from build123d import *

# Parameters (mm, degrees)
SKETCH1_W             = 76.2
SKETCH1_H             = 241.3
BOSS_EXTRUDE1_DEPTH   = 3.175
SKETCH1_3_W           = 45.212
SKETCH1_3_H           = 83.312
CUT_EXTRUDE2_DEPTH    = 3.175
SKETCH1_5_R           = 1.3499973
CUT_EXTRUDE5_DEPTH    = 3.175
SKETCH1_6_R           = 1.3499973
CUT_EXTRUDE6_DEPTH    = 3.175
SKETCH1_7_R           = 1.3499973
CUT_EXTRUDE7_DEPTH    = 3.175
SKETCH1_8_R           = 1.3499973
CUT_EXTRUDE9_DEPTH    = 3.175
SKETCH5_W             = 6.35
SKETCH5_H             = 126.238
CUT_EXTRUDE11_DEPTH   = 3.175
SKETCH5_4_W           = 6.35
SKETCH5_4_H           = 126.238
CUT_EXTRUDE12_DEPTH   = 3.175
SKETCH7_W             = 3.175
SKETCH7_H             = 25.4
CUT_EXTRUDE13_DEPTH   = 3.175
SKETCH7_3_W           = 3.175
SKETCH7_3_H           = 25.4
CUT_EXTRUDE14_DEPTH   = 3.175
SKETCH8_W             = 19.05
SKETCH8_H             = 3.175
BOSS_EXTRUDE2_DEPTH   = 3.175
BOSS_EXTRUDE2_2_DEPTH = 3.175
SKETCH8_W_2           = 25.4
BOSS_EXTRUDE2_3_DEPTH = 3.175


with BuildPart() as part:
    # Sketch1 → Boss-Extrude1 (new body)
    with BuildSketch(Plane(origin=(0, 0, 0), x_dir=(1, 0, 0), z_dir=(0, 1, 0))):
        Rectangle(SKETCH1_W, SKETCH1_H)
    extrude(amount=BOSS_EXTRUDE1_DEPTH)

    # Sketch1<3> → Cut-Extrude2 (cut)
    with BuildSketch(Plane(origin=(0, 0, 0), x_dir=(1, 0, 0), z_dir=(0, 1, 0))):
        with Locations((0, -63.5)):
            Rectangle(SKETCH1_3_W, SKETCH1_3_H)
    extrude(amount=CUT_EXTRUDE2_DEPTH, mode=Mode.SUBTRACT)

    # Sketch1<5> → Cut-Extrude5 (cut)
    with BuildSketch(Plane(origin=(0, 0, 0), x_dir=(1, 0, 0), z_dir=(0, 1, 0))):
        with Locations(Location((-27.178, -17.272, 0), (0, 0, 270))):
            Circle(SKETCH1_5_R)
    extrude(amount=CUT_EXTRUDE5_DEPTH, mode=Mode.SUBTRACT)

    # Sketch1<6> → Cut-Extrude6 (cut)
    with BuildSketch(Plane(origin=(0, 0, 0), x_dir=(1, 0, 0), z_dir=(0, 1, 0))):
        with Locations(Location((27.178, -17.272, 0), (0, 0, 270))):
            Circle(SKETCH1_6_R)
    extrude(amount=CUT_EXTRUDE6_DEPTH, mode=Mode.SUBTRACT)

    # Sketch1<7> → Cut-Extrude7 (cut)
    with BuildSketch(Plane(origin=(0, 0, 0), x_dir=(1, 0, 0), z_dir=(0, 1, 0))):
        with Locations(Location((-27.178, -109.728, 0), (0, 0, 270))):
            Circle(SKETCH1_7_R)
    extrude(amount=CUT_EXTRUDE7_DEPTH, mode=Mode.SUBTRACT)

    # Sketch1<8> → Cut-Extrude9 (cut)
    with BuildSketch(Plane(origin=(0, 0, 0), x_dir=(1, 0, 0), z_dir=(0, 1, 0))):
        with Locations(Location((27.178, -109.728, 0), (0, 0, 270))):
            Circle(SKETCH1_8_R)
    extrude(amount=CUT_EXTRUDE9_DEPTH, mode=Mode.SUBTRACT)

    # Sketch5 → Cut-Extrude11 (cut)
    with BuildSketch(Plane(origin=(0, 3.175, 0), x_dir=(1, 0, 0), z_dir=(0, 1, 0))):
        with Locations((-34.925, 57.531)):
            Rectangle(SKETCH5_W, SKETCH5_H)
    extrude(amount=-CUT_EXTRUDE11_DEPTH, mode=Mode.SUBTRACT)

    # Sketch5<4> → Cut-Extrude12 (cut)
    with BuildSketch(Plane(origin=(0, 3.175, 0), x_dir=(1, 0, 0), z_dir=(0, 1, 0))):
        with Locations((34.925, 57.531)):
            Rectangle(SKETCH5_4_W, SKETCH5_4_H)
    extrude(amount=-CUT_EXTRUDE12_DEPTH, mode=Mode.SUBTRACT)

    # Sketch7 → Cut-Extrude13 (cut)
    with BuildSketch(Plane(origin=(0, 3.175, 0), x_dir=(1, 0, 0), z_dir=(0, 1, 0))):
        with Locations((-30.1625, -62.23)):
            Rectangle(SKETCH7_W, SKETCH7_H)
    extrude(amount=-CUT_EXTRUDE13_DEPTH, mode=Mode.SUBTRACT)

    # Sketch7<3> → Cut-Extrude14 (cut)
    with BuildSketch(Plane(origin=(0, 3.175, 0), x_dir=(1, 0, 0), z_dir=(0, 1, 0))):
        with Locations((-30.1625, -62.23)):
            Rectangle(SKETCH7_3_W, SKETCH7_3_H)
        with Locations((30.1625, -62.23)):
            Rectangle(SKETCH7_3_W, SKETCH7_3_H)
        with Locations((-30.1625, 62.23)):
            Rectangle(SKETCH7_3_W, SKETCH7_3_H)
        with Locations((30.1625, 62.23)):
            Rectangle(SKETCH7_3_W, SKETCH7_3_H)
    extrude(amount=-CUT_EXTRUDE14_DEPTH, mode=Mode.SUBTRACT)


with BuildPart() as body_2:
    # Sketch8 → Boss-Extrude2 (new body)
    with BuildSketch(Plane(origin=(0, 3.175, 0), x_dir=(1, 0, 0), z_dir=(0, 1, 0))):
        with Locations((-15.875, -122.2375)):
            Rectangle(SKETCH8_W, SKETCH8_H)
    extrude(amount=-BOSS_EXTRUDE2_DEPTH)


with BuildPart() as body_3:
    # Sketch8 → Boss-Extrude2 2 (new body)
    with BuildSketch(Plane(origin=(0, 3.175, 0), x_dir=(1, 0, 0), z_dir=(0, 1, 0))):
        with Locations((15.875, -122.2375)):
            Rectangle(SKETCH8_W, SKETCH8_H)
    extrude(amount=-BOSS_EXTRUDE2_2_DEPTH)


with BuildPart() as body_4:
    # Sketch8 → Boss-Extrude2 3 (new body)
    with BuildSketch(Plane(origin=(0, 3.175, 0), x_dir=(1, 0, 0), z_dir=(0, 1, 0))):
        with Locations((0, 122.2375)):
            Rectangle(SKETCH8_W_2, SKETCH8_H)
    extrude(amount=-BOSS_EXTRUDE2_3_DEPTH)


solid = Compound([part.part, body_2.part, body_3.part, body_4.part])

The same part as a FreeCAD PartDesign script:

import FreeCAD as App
import Part
import Sketcher
Q = App.Units.Quantity

doc = App.newDocument("Part")
params = doc.addObject("Spreadsheet::Sheet", "Params")
for row, (alias, value) in enumerate([
    ("sketch1_width", "3 in"),
    ("sketch1_height", "9.5 in"),
    ("pad1_length", "0.125 in"),
    ("sketch2_width", "1.78 in"),
    ("sketch2_height", "3.28 in"),
    ("pocket1_length", "0.125 in"),
    ("pocket2_length", "0.125 in"),
    ("pocket3_length", "0.125 in"),
    ("pocket4_length", "0.125 in"),
    ("pocket5_length", "0.125 in"),
    ("sketch7_width", "0.25 in"),
    ("sketch7_height", "4.97 in"),
    ("pocket6_length", "0.125 in"),
    ("sketch8_width", "0.25 in"),
    ("sketch8_height", "4.97 in"),
    ("pocket7_length", "0.125 in"),
    ("sketch9_height", "1 in"),
    ("sketch9_width", "0.125 in"),
    ("pocket8_length", "0.125 in"),
    ("sketch10_height", "1 in"),
    ("sketch10_width", "0.125 in"),
    ("pocket9_length", "0.125 in"),
    ("sketch11_width", "0.75 in"),
    ("sketch11_height", "0.125 in"),
    ("pad2_length", "0.125 in"),
    ("sketch12_width", "0.75 in"),
    ("sketch12_height", "0.125 in"),
    ("pad3_length", "0.125 in"),
    ("sketch13_width", "1 in"),
    ("sketch13_height", "0.125 in"),
    ("pad4_length", "0.125 in"),
], start=1):
    params.set(f"A{row}", alias)
    params.set(f"B{row}", "=" + value)
    params.setAlias(f"B{row}", alias)

body = doc.addObject("PartDesign::Body", "Body")

# Sketch on XZ plane
sketch1 = body.newObject("Sketcher::SketchObject", "Sketch")
sketch1.AttachmentSupport = (doc.getObject("XZ_Plane"), [""])
sketch1.MapMode = "FlatFace"
sketch1.addGeometry(Part.LineSegment(App.Vector(-38.1, -120.65, 0), App.Vector(-38.1, 120.65, 0)), False)
sketch1.addGeometry(Part.LineSegment(App.Vector(-38.1, 120.65, 0), App.Vector(38.1, 120.65, 0)), False)
sketch1.addGeometry(Part.LineSegment(App.Vector(38.1, 120.65, 0), App.Vector(38.1, -120.65, 0)), False)
sketch1.addGeometry(Part.LineSegment(App.Vector(38.1, -120.65, 0), App.Vector(-38.1, -120.65, 0)), False)
sketch1.addConstraint(Sketcher.Constraint("Coincident", 0, 2, 1, 1))
sketch1.addConstraint(Sketcher.Constraint("Coincident", 1, 2, 2, 1))
sketch1.addConstraint(Sketcher.Constraint("Coincident", 2, 2, 3, 1))
sketch1.addConstraint(Sketcher.Constraint("Coincident", 3, 2, 0, 1))
sketch1.addConstraint(Sketcher.Constraint("Vertical", 0))
sketch1.addConstraint(Sketcher.Constraint("Horizontal", 1))
sketch1.addConstraint(Sketcher.Constraint("Vertical", 2))
sketch1.addConstraint(Sketcher.Constraint("Horizontal", 3))
sketch1.addConstraint(Sketcher.Constraint("Symmetric", 0, 2, 2, 2, -1, 1))
sketch1.addConstraint(Sketcher.Constraint("DistanceX", 1, 1, 1, 2, Q("3 in")))
sketch1.addConstraint(Sketcher.Constraint("DistanceY", 0, 1, 0, 2, Q("9.5 in")))
sketch1.setExpression("Constraints[9]", "Params.sketch1_width")
sketch1.setExpression("Constraints[10]", "Params.sketch1_height")
pad1 = body.newObject("PartDesign::Pad", "Pad")
pad1.Profile = sketch1
pad1.setExpression("Length", "Params.pad1_length")
pad1.Reversed = True

# Sketch on XZ plane
sketch2 = body.newObject("Sketcher::SketchObject", "Sketch001")
sketch2.AttachmentSupport = (doc.getObject("XZ_Plane"), [""])
sketch2.MapMode = "FlatFace"
sketch2.addGeometry(Part.LineSegment(App.Vector(-22.606, 21.844, 0), App.Vector(-22.606, 105.156, 0)), False)
sketch2.addGeometry(Part.LineSegment(App.Vector(-22.606, 105.156, 0), App.Vector(22.606, 105.156, 0)), False)
sketch2.addGeometry(Part.LineSegment(App.Vector(22.606, 105.156, 0), App.Vector(22.606, 21.844, 0)), False)
sketch2.addGeometry(Part.LineSegment(App.Vector(22.606, 21.844, 0), App.Vector(-22.606, 21.844, 0)), False)
sketch2.addConstraint(Sketcher.Constraint("Coincident", 0, 2, 1, 1))
sketch2.addConstraint(Sketcher.Constraint("Coincident", 1, 2, 2, 1))
sketch2.addConstraint(Sketcher.Constraint("Coincident", 2, 2, 3, 1))
sketch2.addConstraint(Sketcher.Constraint("Coincident", 3, 2, 0, 1))
sketch2.addConstraint(Sketcher.Constraint("Vertical", 0))
sketch2.addConstraint(Sketcher.Constraint("Horizontal", 1))
sketch2.addConstraint(Sketcher.Constraint("Vertical", 2))
sketch2.addConstraint(Sketcher.Constraint("Horizontal", 3))
sketch2.addConstraint(Sketcher.Constraint("DistanceX", 1, 1, 1, 2, Q("1.78 in")))
sketch2.addConstraint(Sketcher.Constraint("DistanceY", 0, 1, 0, 2, Q("3.28 in")))
sketch2.addConstraint(Sketcher.Constraint("DistanceX", 0, 2, -1, 1, Q("0.89 in")))
sketch2.addConstraint(Sketcher.Constraint("DistanceY", -1, 1, 0, 2, Q("4.14 in")))
sketch2.setExpression("Constraints[8]", "Params.sketch2_width")
sketch2.setExpression("Constraints[9]", "Params.sketch2_height")
pocket1 = body.newObject("PartDesign::Pocket", "Pocket")
pocket1.Profile = sketch2
pocket1.setExpression("Length", "Params.pocket1_length")

# Sketch on XZ plane
sketch3 = body.newObject("Sketcher::SketchObject", "Sketch002")
sketch3.AttachmentSupport = (doc.getObject("XZ_Plane"), [""])
sketch3.MapMode = "FlatFace"
sketch3.addGeometry(Part.Circle(App.Vector(-27.178, 17.272, 0), App.Vector(0, 0, 1), 1.349997), False)
sketch3.addConstraint(Sketcher.Constraint("DistanceX", 0, 3, -1, 1, Q("1.07 in")))
sketch3.addConstraint(Sketcher.Constraint("DistanceY", -1, 1, 0, 3, Q("0.68 in")))
sketch3.addConstraint(Sketcher.Constraint("Diameter", 0, Q("2.699995 mm")))
pocket2 = body.newObject("PartDesign::Pocket", "Pocket001")
pocket2.Profile = sketch3
pocket2.setExpression("Length", "Params.pocket2_length")

# Sketch on XZ plane
sketch4 = body.newObject("Sketcher::SketchObject", "Sketch003")
sketch4.AttachmentSupport = (doc.getObject("XZ_Plane"), [""])
sketch4.MapMode = "FlatFace"
sketch4.addGeometry(Part.Circle(App.Vector(27.178, 17.272, 0), App.Vector(0, 0, 1), 1.349997), False)
sketch4.addConstraint(Sketcher.Constraint("DistanceX", -1, 1, 0, 3, Q("1.07 in")))
sketch4.addConstraint(Sketcher.Constraint("DistanceY", -1, 1, 0, 3, Q("0.68 in")))
sketch4.addConstraint(Sketcher.Constraint("Diameter", 0, Q("2.699995 mm")))
pocket3 = body.newObject("PartDesign::Pocket", "Pocket002")
pocket3.Profile = sketch4
pocket3.setExpression("Length", "Params.pocket3_length")

# Sketch on XZ plane
sketch5 = body.newObject("Sketcher::SketchObject", "Sketch004")
sketch5.AttachmentSupport = (doc.getObject("XZ_Plane"), [""])
sketch5.MapMode = "FlatFace"
sketch5.addGeometry(Part.Circle(App.Vector(-27.178, 109.728, 0), App.Vector(0, 0, 1), 1.349997), False)
sketch5.addConstraint(Sketcher.Constraint("DistanceX", 0, 3, -1, 1, Q("1.07 in")))
sketch5.addConstraint(Sketcher.Constraint("DistanceY", -1, 1, 0, 3, Q("4.32 in")))
sketch5.addConstraint(Sketcher.Constraint("Diameter", 0, Q("2.699995 mm")))
pocket4 = body.newObject("PartDesign::Pocket", "Pocket003")
pocket4.Profile = sketch5
pocket4.setExpression("Length", "Params.pocket4_length")

# Sketch on XZ plane
sketch6 = body.newObject("Sketcher::SketchObject", "Sketch005")
sketch6.AttachmentSupport = (doc.getObject("XZ_Plane"), [""])
sketch6.MapMode = "FlatFace"
sketch6.addGeometry(Part.Circle(App.Vector(27.178, 109.728, 0), App.Vector(0, 0, 1), 1.349997), False)
sketch6.addConstraint(Sketcher.Constraint("DistanceX", -1, 1, 0, 3, Q("1.07 in")))
sketch6.addConstraint(Sketcher.Constraint("DistanceY", -1, 1, 0, 3, Q("4.32 in")))
sketch6.addConstraint(Sketcher.Constraint("Diameter", 0, Q("2.699995 mm")))
pocket5 = body.newObject("PartDesign::Pocket", "Pocket004")
pocket5.Profile = sketch6
pocket5.setExpression("Length", "Params.pocket5_length")

# Sketch on XZ plane
sketch7 = body.newObject("Sketcher::SketchObject", "Sketch006")
sketch7.AttachmentSupport = (doc.getObject("XZ_Plane"), [""])
sketch7.MapMode = "FlatFace"
sketch7.AttachmentOffset = App.Placement(App.Vector(0, 0, -0.125 * 25.4), App.Rotation())
sketch7.addGeometry(Part.LineSegment(App.Vector(-38.1, -120.65, 0), App.Vector(-38.1, 5.588, 0)), False)
sketch7.addGeometry(Part.LineSegment(App.Vector(-38.1, 5.588, 0), App.Vector(-31.75, 5.588, 0)), False)
sketch7.addGeometry(Part.LineSegment(App.Vector(-31.75, 5.588, 0), App.Vector(-31.75, -120.65, 0)), False)
sketch7.addGeometry(Part.LineSegment(App.Vector(-31.75, -120.65, 0), App.Vector(-38.1, -120.65, 0)), False)
sketch7.addConstraint(Sketcher.Constraint("Coincident", 0, 2, 1, 1))
sketch7.addConstraint(Sketcher.Constraint("Coincident", 1, 2, 2, 1))
sketch7.addConstraint(Sketcher.Constraint("Coincident", 2, 2, 3, 1))
sketch7.addConstraint(Sketcher.Constraint("Coincident", 3, 2, 0, 1))
sketch7.addConstraint(Sketcher.Constraint("Vertical", 0))
sketch7.addConstraint(Sketcher.Constraint("Horizontal", 1))
sketch7.addConstraint(Sketcher.Constraint("Vertical", 2))
sketch7.addConstraint(Sketcher.Constraint("Horizontal", 3))
sketch7.addConstraint(Sketcher.Constraint("DistanceX", 1, 1, 1, 2, Q("0.25 in")))
sketch7.addConstraint(Sketcher.Constraint("DistanceY", 0, 1, 0, 2, Q("4.97 in")))
sketch7.addConstraint(Sketcher.Constraint("DistanceX", 0, 2, -1, 1, Q("1.5 in")))
sketch7.addConstraint(Sketcher.Constraint("DistanceY", -1, 1, 0, 2, Q("0.22 in")))
sketch7.setExpression("Constraints[8]", "Params.sketch7_width")
sketch7.setExpression("Constraints[9]", "Params.sketch7_height")
pocket6 = body.newObject("PartDesign::Pocket", "Pocket005")
pocket6.Profile = sketch7
pocket6.setExpression("Length", "Params.pocket6_length")
pocket6.Reversed = True

# Sketch on XZ plane
sketch8 = body.newObject("Sketcher::SketchObject", "Sketch007")
sketch8.AttachmentSupport = (doc.getObject("XZ_Plane"), [""])
sketch8.MapMode = "FlatFace"
sketch8.AttachmentOffset = App.Placement(App.Vector(0, 0, -0.125 * 25.4), App.Rotation())
sketch8.addGeometry(Part.LineSegment(App.Vector(31.75, -120.65, 0), App.Vector(31.75, 5.588, 0)), False)
sketch8.addGeometry(Part.LineSegment(App.Vector(31.75, 5.588, 0), App.Vector(38.1, 5.588, 0)), False)
sketch8.addGeometry(Part.LineSegment(App.Vector(38.1, 5.588, 0), App.Vector(38.1, -120.65, 0)), False)
sketch8.addGeometry(Part.LineSegment(App.Vector(38.1, -120.65, 0), App.Vector(31.75, -120.65, 0)), False)
sketch8.addConstraint(Sketcher.Constraint("Coincident", 0, 2, 1, 1))
sketch8.addConstraint(Sketcher.Constraint("Coincident", 1, 2, 2, 1))
sketch8.addConstraint(Sketcher.Constraint("Coincident", 2, 2, 3, 1))
sketch8.addConstraint(Sketcher.Constraint("Coincident", 3, 2, 0, 1))
sketch8.addConstraint(Sketcher.Constraint("Vertical", 0))
sketch8.addConstraint(Sketcher.Constraint("Horizontal", 1))
sketch8.addConstraint(Sketcher.Constraint("Vertical", 2))
sketch8.addConstraint(Sketcher.Constraint("Horizontal", 3))
sketch8.addConstraint(Sketcher.Constraint("DistanceX", 1, 1, 1, 2, Q("0.25 in")))
sketch8.addConstraint(Sketcher.Constraint("DistanceY", 0, 1, 0, 2, Q("4.97 in")))
sketch8.addConstraint(Sketcher.Constraint("DistanceX", -1, 1, 1, 2, Q("1.5 in")))
sketch8.addConstraint(Sketcher.Constraint("DistanceY", -1, 1, 0, 2, Q("0.22 in")))
sketch8.setExpression("Constraints[8]", "Params.sketch8_width")
sketch8.setExpression("Constraints[9]", "Params.sketch8_height")
pocket7 = body.newObject("PartDesign::Pocket", "Pocket006")
pocket7.Profile = sketch8
pocket7.setExpression("Length", "Params.pocket7_length")
pocket7.Reversed = True

# Sketch on XZ plane
sketch9 = body.newObject("Sketcher::SketchObject", "Sketch008")
sketch9.AttachmentSupport = (doc.getObject("XZ_Plane"), [""])
sketch9.MapMode = "FlatFace"
sketch9.AttachmentOffset = App.Placement(App.Vector(0, 0, -0.125 * 25.4), App.Rotation())
sketch9.addGeometry(Part.LineSegment(App.Vector(-31.75, 49.53, 0), App.Vector(-31.75, 74.93, 0)), False)
sketch9.addGeometry(Part.LineSegment(App.Vector(-31.75, 74.93, 0), App.Vector(-28.575, 74.93, 0)), False)
sketch9.addGeometry(Part.LineSegment(App.Vector(-28.575, 74.93, 0), App.Vector(-28.575, 49.53, 0)), False)
sketch9.addGeometry(Part.LineSegment(App.Vector(-28.575, 49.53, 0), App.Vector(-31.75, 49.53, 0)), False)
sketch9.addConstraint(Sketcher.Constraint("Coincident", 0, 2, 1, 1))
sketch9.addConstraint(Sketcher.Constraint("Coincident", 1, 2, 2, 1))
sketch9.addConstraint(Sketcher.Constraint("Coincident", 2, 2, 3, 1))
sketch9.addConstraint(Sketcher.Constraint("Coincident", 3, 2, 0, 1))
sketch9.addConstraint(Sketcher.Constraint("Vertical", 0))
sketch9.addConstraint(Sketcher.Constraint("Horizontal", 1))
sketch9.addConstraint(Sketcher.Constraint("Vertical", 2))
sketch9.addConstraint(Sketcher.Constraint("Horizontal", 3))
sketch9.addConstraint(Sketcher.Constraint("DistanceY", 0, 1, 0, 2, Q("1 in")))
sketch9.addConstraint(Sketcher.Constraint("DistanceX", 1, 1, 1, 2, Q("0.125 in")))
sketch9.addConstraint(Sketcher.Constraint("DistanceX", 0, 2, -1, 1, Q("1.25 in")))
sketch9.addConstraint(Sketcher.Constraint("DistanceY", -1, 1, 0, 2, Q("2.95 in")))
sketch9.setExpression("Constraints[8]", "Params.sketch9_height")
sketch9.setExpression("Constraints[9]", "Params.sketch9_width")
pocket8 = body.newObject("PartDesign::Pocket", "Pocket007")
pocket8.Profile = sketch9
pocket8.setExpression("Length", "Params.pocket8_length")
pocket8.Reversed = True

# Sketch on XZ plane
sketch10 = body.newObject("Sketcher::SketchObject", "Sketch009")
sketch10.AttachmentSupport = (doc.getObject("XZ_Plane"), [""])
sketch10.MapMode = "FlatFace"
sketch10.AttachmentOffset = App.Placement(App.Vector(0, 0, -0.125 * 25.4), App.Rotation())
sketch10.addGeometry(Part.LineSegment(App.Vector(-31.75, 49.53, 0), App.Vector(-31.75, 74.93, 0)), False)
sketch10.addGeometry(Part.LineSegment(App.Vector(-31.75, 74.93, 0), App.Vector(-28.575, 74.93, 0)), False)
sketch10.addGeometry(Part.LineSegment(App.Vector(-28.575, 74.93, 0), App.Vector(-28.575, 49.53, 0)), False)
sketch10.addGeometry(Part.LineSegment(App.Vector(-28.575, 49.53, 0), App.Vector(-31.75, 49.53, 0)), False)
sketch10.addGeometry(Part.LineSegment(App.Vector(28.575, 49.53, 0), App.Vector(28.575, 74.93, 0)), False)
sketch10.addGeometry(Part.LineSegment(App.Vector(28.575, 74.93, 0), App.Vector(31.75, 74.93, 0)), False)
sketch10.addGeometry(Part.LineSegment(App.Vector(31.75, 74.93, 0), App.Vector(31.75, 49.53, 0)), False)
sketch10.addGeometry(Part.LineSegment(App.Vector(31.75, 49.53, 0), App.Vector(28.575, 49.53, 0)), False)
sketch10.addGeometry(Part.LineSegment(App.Vector(-31.75, -74.93, 0), App.Vector(-31.75, -49.53, 0)), False)
sketch10.addGeometry(Part.LineSegment(App.Vector(-31.75, -49.53, 0), App.Vector(-28.575, -49.53, 0)), False)
sketch10.addGeometry(Part.LineSegment(App.Vector(-28.575, -49.53, 0), App.Vector(-28.575, -74.93, 0)), False)
sketch10.addGeometry(Part.LineSegment(App.Vector(-28.575, -74.93, 0), App.Vector(-31.75, -74.93, 0)), False)
sketch10.addGeometry(Part.LineSegment(App.Vector(28.575, -74.93, 0), App.Vector(28.575, -49.53, 0)), False)
sketch10.addGeometry(Part.LineSegment(App.Vector(28.575, -49.53, 0), App.Vector(31.75, -49.53, 0)), False)
sketch10.addGeometry(Part.LineSegment(App.Vector(31.75, -49.53, 0), App.Vector(31.75, -74.93, 0)), False)
sketch10.addGeometry(Part.LineSegment(App.Vector(31.75, -74.93, 0), App.Vector(28.575, -74.93, 0)), False)
sketch10.addConstraint(Sketcher.Constraint("Coincident", 0, 2, 1, 1))
sketch10.addConstraint(Sketcher.Constraint("Coincident", 1, 2, 2, 1))
sketch10.addConstraint(Sketcher.Constraint("Coincident", 2, 2, 3, 1))
sketch10.addConstraint(Sketcher.Constraint("Coincident", 3, 2, 0, 1))
sketch10.addConstraint(Sketcher.Constraint("Coincident", 4, 2, 5, 1))
sketch10.addConstraint(Sketcher.Constraint("Coincident", 5, 2, 6, 1))
sketch10.addConstraint(Sketcher.Constraint("Coincident", 6, 2, 7, 1))
sketch10.addConstraint(Sketcher.Constraint("Coincident", 7, 2, 4, 1))
sketch10.addConstraint(Sketcher.Constraint("Coincident", 8, 2, 9, 1))
sketch10.addConstraint(Sketcher.Constraint("Coincident", 9, 2, 10, 1))
sketch10.addConstraint(Sketcher.Constraint("Coincident", 10, 2, 11, 1))
sketch10.addConstraint(Sketcher.Constraint("Coincident", 11, 2, 8, 1))
sketch10.addConstraint(Sketcher.Constraint("Coincident", 12, 2, 13, 1))
sketch10.addConstraint(Sketcher.Constraint("Coincident", 13, 2, 14, 1))
sketch10.addConstraint(Sketcher.Constraint("Coincident", 14, 2, 15, 1))
sketch10.addConstraint(Sketcher.Constraint("Coincident", 15, 2, 12, 1))
sketch10.addConstraint(Sketcher.Constraint("Vertical", 0))
sketch10.addConstraint(Sketcher.Constraint("Horizontal", 1))
sketch10.addConstraint(Sketcher.Constraint("Vertical", 2))
sketch10.addConstraint(Sketcher.Constraint("Horizontal", 3))
sketch10.addConstraint(Sketcher.Constraint("Vertical", 4))
sketch10.addConstraint(Sketcher.Constraint("Horizontal", 5))
sketch10.addConstraint(Sketcher.Constraint("Vertical", 6))
sketch10.addConstraint(Sketcher.Constraint("Horizontal", 7))
sketch10.addConstraint(Sketcher.Constraint("Vertical", 8))
sketch10.addConstraint(Sketcher.Constraint("Horizontal", 9))
sketch10.addConstraint(Sketcher.Constraint("Vertical", 10))
sketch10.addConstraint(Sketcher.Constraint("Horizontal", 11))
sketch10.addConstraint(Sketcher.Constraint("Vertical", 12))
sketch10.addConstraint(Sketcher.Constraint("Horizontal", 13))
sketch10.addConstraint(Sketcher.Constraint("Vertical", 14))
sketch10.addConstraint(Sketcher.Constraint("Horizontal", 15))
sketch10.addConstraint(Sketcher.Constraint("Symmetric", 6, 2, 8, 2, -1, 1))
sketch10.addConstraint(Sketcher.Constraint("Symmetric", 4, 2, 10, 2, -1, 1))
sketch10.addConstraint(Sketcher.Constraint("Symmetric", 2, 2, 12, 2, -1, 1))
sketch10.addConstraint(Sketcher.Constraint("Symmetric", 0, 2, 14, 2, -1, 1))
sketch10.addConstraint(Sketcher.Constraint("Symmetric", 1, 2, 4, 2, -2))
sketch10.addConstraint(Sketcher.Constraint("Symmetric", 3, 2, 6, 2, -2))
sketch10.addConstraint(Sketcher.Constraint("DistanceY", 0, 1, 0, 2, Q("1 in")))
sketch10.addConstraint(Sketcher.Constraint("DistanceX", 0, 2, 5, 2, Q("2.5 in")))
sketch10.addConstraint(Sketcher.Constraint("DistanceY", 8, 2, 3, 2, Q("3.9 in")))
sketch10.addConstraint(Sketcher.Constraint("DistanceX", 1, 1, 1, 2, Q("0.125 in")))
sketch10.setExpression("Constraints[38]", "Params.sketch10_height")
sketch10.setExpression("Constraints[41]", "Params.sketch10_width")
pocket9 = body.newObject("PartDesign::Pocket", "Pocket008")
pocket9.Profile = sketch10
pocket9.setExpression("Length", "Params.pocket9_length")
pocket9.Reversed = True
body2 = doc.addObject("PartDesign::Body", "Body001")

# Sketch on XZ plane
sketch11 = body2.newObject("Sketcher::SketchObject", "Sketch010")
sketch11.AttachmentSupport = (doc.getObject("XZ_Plane001"), [""])
sketch11.MapMode = "FlatFace"
sketch11.AttachmentOffset = App.Placement(App.Vector(0, 0, -0.125 * 25.4), App.Rotation())
sketch11.addGeometry(Part.LineSegment(App.Vector(-25.4, 120.65, 0), App.Vector(-25.4, 123.825, 0)), False)
sketch11.addGeometry(Part.LineSegment(App.Vector(-25.4, 123.825, 0), App.Vector(-6.35, 123.825, 0)), False)
sketch11.addGeometry(Part.LineSegment(App.Vector(-6.35, 123.825, 0), App.Vector(-6.35, 120.65, 0)), False)
sketch11.addGeometry(Part.LineSegment(App.Vector(-6.35, 120.65, 0), App.Vector(-25.4, 120.65, 0)), False)
sketch11.addConstraint(Sketcher.Constraint("Coincident", 0, 2, 1, 1))
sketch11.addConstraint(Sketcher.Constraint("Coincident", 1, 2, 2, 1))
sketch11.addConstraint(Sketcher.Constraint("Coincident", 2, 2, 3, 1))
sketch11.addConstraint(Sketcher.Constraint("Coincident", 3, 2, 0, 1))
sketch11.addConstraint(Sketcher.Constraint("Vertical", 0))
sketch11.addConstraint(Sketcher.Constraint("Horizontal", 1))
sketch11.addConstraint(Sketcher.Constraint("Vertical", 2))
sketch11.addConstraint(Sketcher.Constraint("Horizontal", 3))
sketch11.addConstraint(Sketcher.Constraint("DistanceX", 0, 2, -1, 1, Q("1 in")))
sketch11.addConstraint(Sketcher.Constraint("DistanceX", 1, 1, 1, 2, Q("0.75 in")))
sketch11.addConstraint(Sketcher.Constraint("DistanceY", 0, 1, 0, 2, Q("0.125 in")))
sketch11.addConstraint(Sketcher.Constraint("DistanceY", -1, 1, 2, 2, Q("4.75 in")))
sketch11.setExpression("Constraints[9]", "Params.sketch11_width")
sketch11.setExpression("Constraints[10]", "Params.sketch11_height")
pad2 = body2.newObject("PartDesign::Pad", "Pad001")
pad2.Profile = sketch11
pad2.setExpression("Length", "Params.pad2_length")
body3 = doc.addObject("PartDesign::Body", "Body002")

# Sketch on XZ plane
sketch12 = body3.newObject("Sketcher::SketchObject", "Sketch011")
sketch12.AttachmentSupport = (doc.getObject("XZ_Plane002"), [""])
sketch12.MapMode = "FlatFace"
sketch12.AttachmentOffset = App.Placement(App.Vector(0, 0, -0.125 * 25.4), App.Rotation())
sketch12.addGeometry(Part.LineSegment(App.Vector(6.35, 120.65, 0), App.Vector(6.35, 123.825, 0)), False)
sketch12.addGeometry(Part.LineSegment(App.Vector(6.35, 123.825, 0), App.Vector(25.4, 123.825, 0)), False)
sketch12.addGeometry(Part.LineSegment(App.Vector(25.4, 123.825, 0), App.Vector(25.4, 120.65, 0)), False)
sketch12.addGeometry(Part.LineSegment(App.Vector(25.4, 120.65, 0), App.Vector(6.35, 120.65, 0)), False)
sketch12.addConstraint(Sketcher.Constraint("Coincident", 0, 2, 1, 1))
sketch12.addConstraint(Sketcher.Constraint("Coincident", 1, 2, 2, 1))
sketch12.addConstraint(Sketcher.Constraint("Coincident", 2, 2, 3, 1))
sketch12.addConstraint(Sketcher.Constraint("Coincident", 3, 2, 0, 1))
sketch12.addConstraint(Sketcher.Constraint("Vertical", 0))
sketch12.addConstraint(Sketcher.Constraint("Horizontal", 1))
sketch12.addConstraint(Sketcher.Constraint("Vertical", 2))
sketch12.addConstraint(Sketcher.Constraint("Horizontal", 3))
sketch12.addConstraint(Sketcher.Constraint("DistanceX", -1, 1, 1, 2, Q("1 in")))
sketch12.addConstraint(Sketcher.Constraint("DistanceX", 1, 1, 1, 2, Q("0.75 in")))
sketch12.addConstraint(Sketcher.Constraint("DistanceY", 0, 1, 0, 2, Q("0.125 in")))
sketch12.addConstraint(Sketcher.Constraint("DistanceY", -1, 1, 2, 2, Q("4.75 in")))
sketch12.setExpression("Constraints[9]", "Params.sketch12_width")
sketch12.setExpression("Constraints[10]", "Params.sketch12_height")
pad3 = body3.newObject("PartDesign::Pad", "Pad002")
pad3.Profile = sketch12
pad3.setExpression("Length", "Params.pad3_length")
body4 = doc.addObject("PartDesign::Body", "Body003")

# Sketch on XZ plane
sketch13 = body4.newObject("Sketcher::SketchObject", "Sketch012")
sketch13.AttachmentSupport = (doc.getObject("XZ_Plane003"), [""])
sketch13.MapMode = "FlatFace"
sketch13.AttachmentOffset = App.Placement(App.Vector(0, 0, -0.125 * 25.4), App.Rotation())
sketch13.addGeometry(Part.LineSegment(App.Vector(-12.7, -123.825, 0), App.Vector(-12.7, -120.65, 0)), False)
sketch13.addGeometry(Part.LineSegment(App.Vector(-12.7, -120.65, 0), App.Vector(12.7, -120.65, 0)), False)
sketch13.addGeometry(Part.LineSegment(App.Vector(12.7, -120.65, 0), App.Vector(12.7, -123.825, 0)), False)
sketch13.addGeometry(Part.LineSegment(App.Vector(12.7, -123.825, 0), App.Vector(-12.7, -123.825, 0)), False)
sketch13.addConstraint(Sketcher.Constraint("Coincident", 0, 2, 1, 1))
sketch13.addConstraint(Sketcher.Constraint("Coincident", 1, 2, 2, 1))
sketch13.addConstraint(Sketcher.Constraint("Coincident", 2, 2, 3, 1))
sketch13.addConstraint(Sketcher.Constraint("Coincident", 3, 2, 0, 1))
sketch13.addConstraint(Sketcher.Constraint("Vertical", 0))
sketch13.addConstraint(Sketcher.Constraint("Horizontal", 1))
sketch13.addConstraint(Sketcher.Constraint("Vertical", 2))
sketch13.addConstraint(Sketcher.Constraint("Horizontal", 3))
sketch13.addConstraint(Sketcher.Constraint("DistanceX", 1, 1, 1, 2, Q("1 in")))
sketch13.addConstraint(Sketcher.Constraint("DistanceX", 0, 2, -1, 1, Q("0.5 in")))
sketch13.addConstraint(Sketcher.Constraint("DistanceY", 0, 1, 0, 2, Q("0.125 in")))
sketch13.addConstraint(Sketcher.Constraint("DistanceY", 0, 2, -1, 1, Q("4.75 in")))
sketch13.setExpression("Constraints[8]", "Params.sketch13_width")
sketch13.setExpression("Constraints[10]", "Params.sketch13_height")
pad4 = body4.newObject("PartDesign::Pad", "Pad003")
pad4.Profile = sketch13
pad4.setExpression("Length", "Params.pad4_length")

doc.recompute()
